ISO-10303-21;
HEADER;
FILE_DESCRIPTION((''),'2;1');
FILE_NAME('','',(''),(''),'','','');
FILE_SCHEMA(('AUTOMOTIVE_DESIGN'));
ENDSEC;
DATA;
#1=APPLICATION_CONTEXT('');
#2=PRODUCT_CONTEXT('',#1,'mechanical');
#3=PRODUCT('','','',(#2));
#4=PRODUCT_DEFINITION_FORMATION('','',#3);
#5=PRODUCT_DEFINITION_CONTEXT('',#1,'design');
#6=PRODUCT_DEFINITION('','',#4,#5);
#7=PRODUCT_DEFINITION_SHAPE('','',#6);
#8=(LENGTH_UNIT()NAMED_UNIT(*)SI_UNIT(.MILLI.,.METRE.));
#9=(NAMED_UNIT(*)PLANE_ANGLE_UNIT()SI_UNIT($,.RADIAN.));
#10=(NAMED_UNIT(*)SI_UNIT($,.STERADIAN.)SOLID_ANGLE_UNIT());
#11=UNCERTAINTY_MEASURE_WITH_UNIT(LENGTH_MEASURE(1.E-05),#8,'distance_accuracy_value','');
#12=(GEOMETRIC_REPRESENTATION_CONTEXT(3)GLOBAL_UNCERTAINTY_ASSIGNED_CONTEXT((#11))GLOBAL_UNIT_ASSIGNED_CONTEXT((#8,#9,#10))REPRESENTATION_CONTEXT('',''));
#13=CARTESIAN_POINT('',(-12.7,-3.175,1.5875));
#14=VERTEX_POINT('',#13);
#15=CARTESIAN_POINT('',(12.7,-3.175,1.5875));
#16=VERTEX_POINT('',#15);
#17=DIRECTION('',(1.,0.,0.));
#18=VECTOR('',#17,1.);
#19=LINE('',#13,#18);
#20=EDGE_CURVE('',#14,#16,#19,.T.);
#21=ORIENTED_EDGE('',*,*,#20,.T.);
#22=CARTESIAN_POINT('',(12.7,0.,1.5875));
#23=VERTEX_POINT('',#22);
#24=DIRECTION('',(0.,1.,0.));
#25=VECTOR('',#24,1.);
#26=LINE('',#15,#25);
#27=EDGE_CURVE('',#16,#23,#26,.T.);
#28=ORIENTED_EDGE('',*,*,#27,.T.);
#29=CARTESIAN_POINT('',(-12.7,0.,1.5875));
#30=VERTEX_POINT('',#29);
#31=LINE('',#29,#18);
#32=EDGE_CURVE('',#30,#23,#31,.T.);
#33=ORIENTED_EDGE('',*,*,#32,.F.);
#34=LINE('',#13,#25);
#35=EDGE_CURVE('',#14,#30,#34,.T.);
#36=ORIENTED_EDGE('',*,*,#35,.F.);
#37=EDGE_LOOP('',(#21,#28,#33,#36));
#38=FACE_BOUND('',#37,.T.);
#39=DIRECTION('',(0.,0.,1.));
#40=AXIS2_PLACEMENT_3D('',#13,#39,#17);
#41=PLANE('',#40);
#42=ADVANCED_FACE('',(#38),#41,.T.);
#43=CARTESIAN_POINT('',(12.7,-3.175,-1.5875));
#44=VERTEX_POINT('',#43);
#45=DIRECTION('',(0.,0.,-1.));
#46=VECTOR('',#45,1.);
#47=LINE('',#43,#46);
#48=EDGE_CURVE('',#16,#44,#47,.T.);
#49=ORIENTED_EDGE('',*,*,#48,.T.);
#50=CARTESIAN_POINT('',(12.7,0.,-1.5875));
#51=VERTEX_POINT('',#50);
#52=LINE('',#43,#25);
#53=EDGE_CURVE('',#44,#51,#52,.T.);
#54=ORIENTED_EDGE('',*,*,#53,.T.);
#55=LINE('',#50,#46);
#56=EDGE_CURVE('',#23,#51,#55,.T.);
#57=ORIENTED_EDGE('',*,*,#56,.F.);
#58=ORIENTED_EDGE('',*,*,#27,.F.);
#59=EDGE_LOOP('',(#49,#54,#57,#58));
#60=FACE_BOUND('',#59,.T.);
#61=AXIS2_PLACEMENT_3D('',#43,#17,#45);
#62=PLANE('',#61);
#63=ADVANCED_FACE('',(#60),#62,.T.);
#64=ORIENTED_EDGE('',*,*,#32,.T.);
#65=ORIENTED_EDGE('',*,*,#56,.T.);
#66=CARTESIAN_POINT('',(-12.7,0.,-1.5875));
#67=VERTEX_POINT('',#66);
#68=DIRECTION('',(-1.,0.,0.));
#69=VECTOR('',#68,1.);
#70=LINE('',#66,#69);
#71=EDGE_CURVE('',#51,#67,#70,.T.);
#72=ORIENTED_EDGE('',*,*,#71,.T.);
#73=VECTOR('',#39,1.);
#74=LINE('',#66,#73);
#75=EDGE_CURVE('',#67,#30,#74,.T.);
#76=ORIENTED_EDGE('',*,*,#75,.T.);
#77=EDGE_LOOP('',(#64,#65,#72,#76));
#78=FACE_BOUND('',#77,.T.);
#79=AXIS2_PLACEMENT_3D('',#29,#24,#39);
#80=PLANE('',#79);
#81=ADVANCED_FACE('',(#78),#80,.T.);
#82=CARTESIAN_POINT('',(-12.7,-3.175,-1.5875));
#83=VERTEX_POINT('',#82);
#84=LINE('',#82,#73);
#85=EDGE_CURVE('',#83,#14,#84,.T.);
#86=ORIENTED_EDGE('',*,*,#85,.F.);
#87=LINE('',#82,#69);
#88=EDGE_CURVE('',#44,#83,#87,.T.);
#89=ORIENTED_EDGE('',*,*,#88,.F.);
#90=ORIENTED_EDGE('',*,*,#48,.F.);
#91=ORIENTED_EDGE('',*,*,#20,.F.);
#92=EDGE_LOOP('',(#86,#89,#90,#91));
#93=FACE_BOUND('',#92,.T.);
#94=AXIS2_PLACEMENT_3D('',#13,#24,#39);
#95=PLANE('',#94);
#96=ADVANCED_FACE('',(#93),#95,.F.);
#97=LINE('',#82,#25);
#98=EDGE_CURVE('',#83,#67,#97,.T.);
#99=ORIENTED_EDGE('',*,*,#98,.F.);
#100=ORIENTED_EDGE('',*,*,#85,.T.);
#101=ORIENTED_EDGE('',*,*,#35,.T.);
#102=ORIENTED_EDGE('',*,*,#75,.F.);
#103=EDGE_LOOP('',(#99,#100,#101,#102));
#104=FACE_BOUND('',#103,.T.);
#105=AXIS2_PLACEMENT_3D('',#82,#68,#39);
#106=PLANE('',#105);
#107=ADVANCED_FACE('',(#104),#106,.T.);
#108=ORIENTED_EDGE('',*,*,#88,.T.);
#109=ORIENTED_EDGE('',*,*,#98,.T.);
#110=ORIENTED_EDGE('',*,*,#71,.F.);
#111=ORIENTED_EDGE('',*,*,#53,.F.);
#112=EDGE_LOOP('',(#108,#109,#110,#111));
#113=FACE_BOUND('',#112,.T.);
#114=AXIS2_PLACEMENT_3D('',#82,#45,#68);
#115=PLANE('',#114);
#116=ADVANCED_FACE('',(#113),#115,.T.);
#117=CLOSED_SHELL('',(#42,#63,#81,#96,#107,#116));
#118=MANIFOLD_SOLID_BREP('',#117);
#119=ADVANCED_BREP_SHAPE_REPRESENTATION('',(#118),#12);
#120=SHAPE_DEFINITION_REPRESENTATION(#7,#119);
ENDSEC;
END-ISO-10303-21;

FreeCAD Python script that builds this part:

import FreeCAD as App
import Part
import Sketcher
Q = App.Units.Quantity


def add_polygon(sketch, points):
    """Adds a closed chain of lines whose ends are joined by coincident constraints."""
    first, n = sketch.GeometryCount, len(points)
    for a, b in zip(points, points[1:] + points[:1]):
        sketch.addGeometry(Part.LineSegment(App.Vector(*a, 0), App.Vector(*b, 0)), False)
    for i in range(n):
        sketch.addConstraint(Sketcher.Constraint("Coincident", first + i, 2, first + (i + 1) % n, 1))

doc = App.newDocument("Part")
body = doc.addObject("PartDesign::Body", "Body")

# Sketch on XZ plane
sketch1 = body.newObject("Sketcher::SketchObject", "Sketch")
sketch1.AttachmentSupport = (doc.getObject("XZ_Plane"), [""])
sketch1.MapMode = "FlatFace"
add_polygon(sketch1, [(-12.7, -1.5875), (-12.7, 1.5875), (12.7, 1.5875), (12.7, -1.5875)])  # lines 0-3
sketch1.addConstraint([
    Sketcher.Constraint("Vertical", 0),
    Sketcher.Constraint("Horizontal", 1),
    Sketcher.Constraint("Vertical", 2),
    Sketcher.Constraint("Horizontal", 3),
    Sketcher.Constraint("Symmetric", 0, 2, 2, 2, -1, 1),
    Sketcher.Constraint("DistanceX", 1, 1, 1, 2, Q("1 in")),
    Sketcher.Constraint("DistanceY", 0, 1, 0, 2, Q("0.125 in")),
])
pad1 = body.newObject("PartDesign::Pad", "Pad")
pad1.Profile = sketch1
pad1.Length = Q("0.125 in")

doc.recompute()
